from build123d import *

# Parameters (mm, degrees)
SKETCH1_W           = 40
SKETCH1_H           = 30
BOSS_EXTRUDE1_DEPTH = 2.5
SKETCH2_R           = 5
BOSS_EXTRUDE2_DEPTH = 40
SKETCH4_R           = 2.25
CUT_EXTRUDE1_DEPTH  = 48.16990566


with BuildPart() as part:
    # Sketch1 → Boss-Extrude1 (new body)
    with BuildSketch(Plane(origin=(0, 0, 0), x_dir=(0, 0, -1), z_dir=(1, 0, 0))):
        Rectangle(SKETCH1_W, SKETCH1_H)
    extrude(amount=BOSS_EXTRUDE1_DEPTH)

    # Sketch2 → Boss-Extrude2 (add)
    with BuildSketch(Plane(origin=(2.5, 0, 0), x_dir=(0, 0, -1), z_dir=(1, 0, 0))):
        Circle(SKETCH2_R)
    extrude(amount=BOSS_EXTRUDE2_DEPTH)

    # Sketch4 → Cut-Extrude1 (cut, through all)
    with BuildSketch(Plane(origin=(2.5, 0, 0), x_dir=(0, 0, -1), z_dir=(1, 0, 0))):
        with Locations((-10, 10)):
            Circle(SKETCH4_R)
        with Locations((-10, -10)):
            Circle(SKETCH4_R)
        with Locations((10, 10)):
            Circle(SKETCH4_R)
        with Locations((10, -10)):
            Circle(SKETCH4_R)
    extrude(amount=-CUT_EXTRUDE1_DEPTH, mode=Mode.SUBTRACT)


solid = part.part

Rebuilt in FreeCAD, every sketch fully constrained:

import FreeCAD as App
import Part
import Sketcher

V = App.Vector
Q = App.Units.Quantity

doc = App.newDocument("Part")
params = doc.addObject("Spreadsheet::Sheet", "Params")
for row, (alias, value) in enumerate([
    ("sketch1_width", "30 mm"),
    ("sketch1_height", "40 mm"),
    ("pad1_length", "2.5 mm"),
    ("sketch2_diameter", "10 mm"),
    ("pad2_length", "40 mm"),
    ("sketch3_diameter", "4.5 mm"),
], start=1):
    params.set(f"A{row}", alias)
    params.set(f"B{row}", "=" + value)
    params.setAlias(f"B{row}", alias)

body = doc.addObject("PartDesign::Body", "Body")

# Sketch on YZ plane
sketch1 = body.newObject("Sketcher::SketchObject", "Sketch")
sketch1.AttachmentSupport = (doc.getObject("YZ_Plane"), [""])
sketch1.MapMode = "FlatFace"
sketch1.addGeometry(Part.LineSegment(V(15, 20, 0), V(-15, 20, 0)), False)
sketch1.addGeometry(Part.LineSegment(V(-15, 20, 0), V(-15, -20, 0)), False)
sketch1.addGeometry(Part.LineSegment(V(-15, -20, 0), V(15, -20, 0)), False)
sketch1.addGeometry(Part.LineSegment(V(15, -20, 0), V(15, 20, 0)), False)
sketch1.addConstraint(Sketcher.Constraint("Coincident", 0, 2, 1, 1))
sketch1.addConstraint(Sketcher.Constraint("Coincident", 1, 2, 2, 1))
sketch1.addConstraint(Sketcher.Constraint("Coincident", 2, 2, 3, 1))
sketch1.addConstraint(Sketcher.Constraint("Coincident", 3, 2, 0, 1))
sketch1.addConstraint(Sketcher.Constraint("Horizontal", 0))
sketch1.addConstraint(Sketcher.Constraint("Vertical", 1))
sketch1.addConstraint(Sketcher.Constraint("Horizontal", 2))
sketch1.addConstraint(Sketcher.Constraint("Vertical", 3))
sketch1.addConstraint(Sketcher.Constraint("Symmetric", 0, 2, 2, 2, -1, 1))
sketch1.addConstraint(Sketcher.Constraint("DistanceX", 0, 2, 0, 1, Q("30 mm")))
sketch1.addConstraint(Sketcher.Constraint("DistanceY", 1, 2, 1, 1, Q("40 mm")))
sketch1.setExpression("Constraints[9]", "Params.sketch1_width")
sketch1.setExpression("Constraints[10]", "Params.sketch1_height")
pad1 = body.newObject("PartDesign::Pad", "Pad")
pad1.Profile = sketch1
pad1.setExpression("Length", "Params.pad1_length")

# Sketch on YZ plane
sketch2 = body.newObject("Sketcher::SketchObject", "Sketch001")
sketch2.AttachmentSupport = (doc.getObject("YZ_Plane"), [""])
sketch2.MapMode = "FlatFace"
sketch2.AttachmentOffset = App.Placement(V(0, 0, 2.5), App.Rotation())
sketch2.addGeometry(Part.Circle(V(0, 0, 0), V(0, 0, 1), 5), False)
sketch2.addConstraint(Sketcher.Constraint("Coincident", 0, 3, -1, 1))
sketch2.addConstraint(Sketcher.Constraint("Diameter", 0, Q("10 mm")))
sketch2.setExpression("Constraints[1]", "Params.sketch2_diameter")
pad2 = body.newObject("PartDesign::Pad", "Pad001")
pad2.Profile = sketch2
pad2.setExpression("Length", "Params.pad2_length")

# Sketch on YZ plane
sketch3 = body.newObject("Sketcher::SketchObject", "Sketch002")
sketch3.AttachmentSupport = (doc.getObject("YZ_Plane"), [""])
sketch3.MapMode = "FlatFace"
sketch3.AttachmentOffset = App.Placement(V(0, 0, 2.5), App.Rotation())
sketch3.addGeometry(Part.Circle(V(10, 10, 0), V(0, 0, 1), 2.2), False)
sketch3.addGeometry(Part.Circle(V(-10, 10, 0), V(0, 0, 1), 2.2), False)
sketch3.addGeometry(Part.Circle(V(10, -10, 0), V(0, 0, 1), 2.2), False)
sketch3.addGeometry(Part.Circle(V(-10, -10, 0), V(0, 0, 1), 2.2), False)
sketch3.addConstraint(Sketcher.Constraint("Equal", 0, 1))
sketch3.addConstraint(Sketcher.Constraint("Equal", 1, 2))
sketch3.addConstraint(Sketcher.Constraint("Equal", 2, 3))
sketch3.addConstraint(Sketcher.Constraint("Symmetric", 1, 3, 2, 3, -1, 1))
sketch3.addConstraint(Sketcher.Constraint("Symmetric", 0, 3, 3, 3, -1, 1))
sketch3.addConstraint(Sketcher.Constraint("Symmetric", 0, 3, 1, 3, -2))
sketch3.addConstraint(Sketcher.Constraint("Diameter", 0, Q("4.5 mm")))
sketch3.addConstraint(Sketcher.Constraint("DistanceX", -1, 1, 0, 3, Q("10 mm")))
sketch3.addConstraint(Sketcher.Constraint("DistanceY", -1, 1, 0, 3, Q("10 mm")))
sketch3.setExpression("Constraints[6]", "Params.sketch3_diameter")
pocket1 = body.newObject("PartDesign::Pocket", "Pocket")
pocket1.Profile = sketch3
pocket1.Type = "ThroughAll"

doc.recompute()
